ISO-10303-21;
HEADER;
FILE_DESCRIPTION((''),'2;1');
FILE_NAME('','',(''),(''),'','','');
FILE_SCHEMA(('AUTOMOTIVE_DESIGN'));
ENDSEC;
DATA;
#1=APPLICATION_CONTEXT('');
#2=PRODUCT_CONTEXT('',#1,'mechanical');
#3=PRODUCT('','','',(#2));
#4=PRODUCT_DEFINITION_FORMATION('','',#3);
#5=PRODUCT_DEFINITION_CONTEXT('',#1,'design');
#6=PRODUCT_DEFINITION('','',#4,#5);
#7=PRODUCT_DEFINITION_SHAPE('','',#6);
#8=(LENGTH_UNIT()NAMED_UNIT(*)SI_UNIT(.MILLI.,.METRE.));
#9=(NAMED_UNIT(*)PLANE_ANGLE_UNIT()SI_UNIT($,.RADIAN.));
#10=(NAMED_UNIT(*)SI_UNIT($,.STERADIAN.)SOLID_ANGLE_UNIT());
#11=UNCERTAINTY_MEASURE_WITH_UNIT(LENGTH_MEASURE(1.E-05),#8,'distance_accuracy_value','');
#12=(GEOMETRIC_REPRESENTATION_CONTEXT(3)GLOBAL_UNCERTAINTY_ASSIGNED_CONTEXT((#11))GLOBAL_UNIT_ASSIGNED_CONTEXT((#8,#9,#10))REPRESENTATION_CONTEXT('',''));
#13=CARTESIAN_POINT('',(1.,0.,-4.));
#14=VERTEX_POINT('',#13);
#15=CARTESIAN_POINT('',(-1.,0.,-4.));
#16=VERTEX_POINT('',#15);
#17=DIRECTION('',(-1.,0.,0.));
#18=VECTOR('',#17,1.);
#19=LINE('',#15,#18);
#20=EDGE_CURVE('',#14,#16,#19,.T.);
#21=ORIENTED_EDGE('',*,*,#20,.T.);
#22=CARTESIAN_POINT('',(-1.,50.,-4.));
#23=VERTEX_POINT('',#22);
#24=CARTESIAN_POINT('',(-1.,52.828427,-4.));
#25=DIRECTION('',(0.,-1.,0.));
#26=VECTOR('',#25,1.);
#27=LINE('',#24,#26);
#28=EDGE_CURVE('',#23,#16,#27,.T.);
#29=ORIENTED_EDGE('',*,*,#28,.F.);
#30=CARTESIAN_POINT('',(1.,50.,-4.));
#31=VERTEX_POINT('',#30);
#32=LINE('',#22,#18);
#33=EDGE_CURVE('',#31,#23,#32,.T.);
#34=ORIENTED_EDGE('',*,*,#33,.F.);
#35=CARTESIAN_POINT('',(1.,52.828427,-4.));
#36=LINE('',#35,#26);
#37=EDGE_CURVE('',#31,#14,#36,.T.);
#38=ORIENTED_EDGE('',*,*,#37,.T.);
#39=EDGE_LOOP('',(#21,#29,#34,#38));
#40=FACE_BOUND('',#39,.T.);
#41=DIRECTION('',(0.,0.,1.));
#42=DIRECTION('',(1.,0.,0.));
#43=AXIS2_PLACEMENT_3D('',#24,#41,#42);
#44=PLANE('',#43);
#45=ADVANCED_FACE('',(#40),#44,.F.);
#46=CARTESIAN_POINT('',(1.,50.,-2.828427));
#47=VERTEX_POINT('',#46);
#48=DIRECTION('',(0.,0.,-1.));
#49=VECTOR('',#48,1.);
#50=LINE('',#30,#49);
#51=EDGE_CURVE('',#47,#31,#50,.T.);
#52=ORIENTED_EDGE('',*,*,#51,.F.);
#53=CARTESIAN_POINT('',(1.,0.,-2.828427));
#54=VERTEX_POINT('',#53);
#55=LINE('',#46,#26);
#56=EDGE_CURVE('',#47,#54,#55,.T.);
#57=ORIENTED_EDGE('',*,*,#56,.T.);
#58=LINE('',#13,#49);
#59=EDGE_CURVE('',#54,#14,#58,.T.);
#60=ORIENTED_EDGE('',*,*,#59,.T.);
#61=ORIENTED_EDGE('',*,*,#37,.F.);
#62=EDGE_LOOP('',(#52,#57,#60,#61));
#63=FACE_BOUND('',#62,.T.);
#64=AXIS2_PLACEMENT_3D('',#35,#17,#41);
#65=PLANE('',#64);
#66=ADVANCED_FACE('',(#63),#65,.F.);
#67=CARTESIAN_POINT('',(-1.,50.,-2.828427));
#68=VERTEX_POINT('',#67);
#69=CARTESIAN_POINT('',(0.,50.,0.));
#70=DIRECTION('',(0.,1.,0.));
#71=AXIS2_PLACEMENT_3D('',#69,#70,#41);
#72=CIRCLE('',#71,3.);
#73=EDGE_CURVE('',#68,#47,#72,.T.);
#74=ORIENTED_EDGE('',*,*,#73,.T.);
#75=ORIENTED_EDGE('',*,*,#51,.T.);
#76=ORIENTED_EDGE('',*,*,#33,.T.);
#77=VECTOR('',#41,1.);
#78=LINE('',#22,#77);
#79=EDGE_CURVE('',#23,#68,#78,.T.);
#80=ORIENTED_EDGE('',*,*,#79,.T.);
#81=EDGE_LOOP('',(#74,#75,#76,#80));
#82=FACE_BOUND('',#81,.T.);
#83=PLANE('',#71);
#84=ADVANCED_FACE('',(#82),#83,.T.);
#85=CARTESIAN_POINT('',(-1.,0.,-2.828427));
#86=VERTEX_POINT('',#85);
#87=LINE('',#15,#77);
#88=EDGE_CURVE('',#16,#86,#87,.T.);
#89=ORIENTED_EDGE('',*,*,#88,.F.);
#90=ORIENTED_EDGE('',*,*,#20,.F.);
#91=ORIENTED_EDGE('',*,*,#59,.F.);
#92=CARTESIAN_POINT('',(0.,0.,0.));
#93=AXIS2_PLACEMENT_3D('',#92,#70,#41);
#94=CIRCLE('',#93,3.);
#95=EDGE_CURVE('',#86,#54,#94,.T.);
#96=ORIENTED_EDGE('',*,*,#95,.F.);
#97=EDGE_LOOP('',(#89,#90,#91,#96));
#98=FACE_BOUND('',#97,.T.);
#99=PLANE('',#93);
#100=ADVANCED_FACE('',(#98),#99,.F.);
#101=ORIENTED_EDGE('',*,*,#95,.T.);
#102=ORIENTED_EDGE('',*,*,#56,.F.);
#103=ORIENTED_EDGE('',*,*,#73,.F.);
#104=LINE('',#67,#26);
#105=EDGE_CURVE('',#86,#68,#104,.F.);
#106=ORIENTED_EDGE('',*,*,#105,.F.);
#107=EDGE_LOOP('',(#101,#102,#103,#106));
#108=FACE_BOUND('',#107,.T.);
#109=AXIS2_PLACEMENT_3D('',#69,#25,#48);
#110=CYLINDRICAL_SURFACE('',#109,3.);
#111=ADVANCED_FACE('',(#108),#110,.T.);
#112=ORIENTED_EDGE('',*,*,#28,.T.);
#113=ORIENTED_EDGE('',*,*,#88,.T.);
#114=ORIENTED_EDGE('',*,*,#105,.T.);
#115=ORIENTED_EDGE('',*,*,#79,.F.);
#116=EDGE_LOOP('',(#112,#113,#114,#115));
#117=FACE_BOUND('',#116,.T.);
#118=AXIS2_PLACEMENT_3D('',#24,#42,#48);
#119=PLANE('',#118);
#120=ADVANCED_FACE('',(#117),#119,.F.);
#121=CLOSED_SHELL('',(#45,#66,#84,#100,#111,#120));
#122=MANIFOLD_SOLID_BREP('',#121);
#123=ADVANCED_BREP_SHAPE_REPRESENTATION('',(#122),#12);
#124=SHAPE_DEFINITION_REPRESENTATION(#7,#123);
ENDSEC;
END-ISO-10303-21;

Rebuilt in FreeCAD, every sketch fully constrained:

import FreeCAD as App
import Part
import Sketcher
from FreeCAD import Vector
Q = App.Units.Quantity

doc = App.newDocument("Part")
body = doc.addObject("PartDesign::Body", "Body")

# Sketch on XZ plane
sketch1 = body.newObject("Sketcher::SketchObject", "Sketch")
sketch1.AttachmentSupport = (doc.getObject("XZ_Plane"), [""])
sketch1.MapMode = "FlatFace"
sketch1.addGeometry(Part.Circle(Vector(0, 0, 0), Vector(0, 0, 1), 3), False)
sketch1.addConstraint([
    Sketcher.Constraint("Coincident", 0, 3, -1, 1),
    Sketcher.Constraint("Diameter", 0, Q("6 mm")),
])
pad1 = body.newObject("PartDesign::Pad", "Pad")
pad1.Profile = sketch1
pad1.Length = 50
pad1.Reversed = True

# Sketch on XZ plane
sketch2 = body.newObject("Sketcher::SketchObject", "Sketch001")
sketch2.AttachmentSupport = (doc.getObject("XZ_Plane"), [""])
sketch2.MapMode = "FlatFace"
sketch2.addGeometry([
    Part.LineSegment(Vector(-1, -4, 0), Vector(-1, -2, 0)),
    Part.LineSegment(Vector(-1, -2, 0), Vector(1, -2, 0)),
    Part.LineSegment(Vector(1, -2, 0), Vector(1, -4, 0)),
    Part.LineSegment(Vector(1, -4, 0), Vector(-1, -4, 0)),
], False)
sketch2.addConstraint([
    Sketcher.Constraint("Coincident", 0, 2, 1, 1),
    Sketcher.Constraint("Coincident", 1, 2, 2, 1),
    Sketcher.Constraint("Coincident", 2, 2, 3, 1),
    Sketcher.Constraint("Coincident", 3, 2, 0, 1),
    Sketcher.Constraint("Vertical", 0),
    Sketcher.Constraint("Horizontal", 1),
    Sketcher.Constraint("Vertical", 2),
    Sketcher.Constraint("Horizontal", 3),
    Sketcher.Constraint("Equal", 3, 0),
    Sketcher.Constraint("DistanceX", 1, 1, 1, 2, Q("2 mm")),
    Sketcher.Constraint("DistanceX", 0, 2, -1, 1, Q("1 mm")),
    Sketcher.Constraint("DistanceY", 0, 2, -1, 1, Q("2 mm")),
])
pad2 = body.newObject("PartDesign::Pad", "Pad001")
pad2.Profile = sketch2
pad2.Length = 50
pad2.Reversed = True

doc.recompute()
